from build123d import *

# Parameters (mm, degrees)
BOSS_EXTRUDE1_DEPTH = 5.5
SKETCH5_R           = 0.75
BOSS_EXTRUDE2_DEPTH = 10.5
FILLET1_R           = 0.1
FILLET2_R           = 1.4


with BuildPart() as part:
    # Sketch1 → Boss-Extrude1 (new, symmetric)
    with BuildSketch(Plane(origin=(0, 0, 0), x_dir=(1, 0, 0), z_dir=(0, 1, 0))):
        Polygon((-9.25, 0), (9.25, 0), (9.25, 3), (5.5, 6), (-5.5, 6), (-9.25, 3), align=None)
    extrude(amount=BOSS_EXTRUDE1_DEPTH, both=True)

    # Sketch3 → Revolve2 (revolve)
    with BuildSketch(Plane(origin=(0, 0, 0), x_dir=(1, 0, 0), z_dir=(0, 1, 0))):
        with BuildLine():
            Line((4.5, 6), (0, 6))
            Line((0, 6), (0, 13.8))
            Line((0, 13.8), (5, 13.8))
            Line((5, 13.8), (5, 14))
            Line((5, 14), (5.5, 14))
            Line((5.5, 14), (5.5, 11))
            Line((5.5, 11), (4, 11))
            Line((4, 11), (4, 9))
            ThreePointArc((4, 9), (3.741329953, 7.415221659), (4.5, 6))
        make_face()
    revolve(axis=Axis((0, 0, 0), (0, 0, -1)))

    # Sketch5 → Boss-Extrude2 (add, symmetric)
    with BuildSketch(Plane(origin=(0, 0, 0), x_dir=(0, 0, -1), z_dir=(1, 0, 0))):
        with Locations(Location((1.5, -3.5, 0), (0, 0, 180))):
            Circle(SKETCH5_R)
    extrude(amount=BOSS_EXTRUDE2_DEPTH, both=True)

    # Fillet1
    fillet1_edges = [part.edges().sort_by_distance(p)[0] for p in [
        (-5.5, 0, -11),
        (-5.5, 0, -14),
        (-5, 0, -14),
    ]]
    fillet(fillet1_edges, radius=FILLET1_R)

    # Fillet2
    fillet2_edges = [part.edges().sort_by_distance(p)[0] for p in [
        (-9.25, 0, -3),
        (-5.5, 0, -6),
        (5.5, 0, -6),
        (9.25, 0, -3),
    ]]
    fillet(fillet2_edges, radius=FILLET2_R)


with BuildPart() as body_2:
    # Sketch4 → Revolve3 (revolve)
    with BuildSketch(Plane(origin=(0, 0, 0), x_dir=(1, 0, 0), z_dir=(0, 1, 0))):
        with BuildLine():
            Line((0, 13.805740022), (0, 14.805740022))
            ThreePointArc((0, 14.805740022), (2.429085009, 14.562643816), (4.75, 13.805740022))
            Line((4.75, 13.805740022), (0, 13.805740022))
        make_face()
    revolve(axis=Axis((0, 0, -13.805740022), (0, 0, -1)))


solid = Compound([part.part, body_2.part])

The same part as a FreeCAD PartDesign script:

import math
import FreeCAD as App
import Part
import Sketcher

V = App.Vector


def edges_at(feature, points):
    """Names of the edges that pass closest to the given points."""
    edges = feature.Shape.Edges
    near = lambda p: min(range(len(edges)), key=lambda i: edges[i].distToShape(Part.Vertex(*p))[0])
    return sorted({f"Edge{near(p) + 1}" for p in points})


def add_polygon(sketch, points):
    """Adds a closed chain of lines whose ends are joined by coincident constraints."""
    first, n = sketch.GeometryCount, len(points)
    for a, b in zip(points, points[1:] + points[:1]):
        sketch.addGeometry(Part.LineSegment(App.Vector(*a, 0), App.Vector(*b, 0)), False)
    for i in range(n):
        sketch.addConstraint(Sketcher.Constraint("Coincident", first + i, 2, first + (i + 1) % n, 1))

doc = App.newDocument("Part")
params = doc.addObject("Spreadsheet::Sheet", "Params")
for row, (alias, value) in enumerate([
    ("sketch1_width", "11 mm"),
    ("sketch1_height", "3 mm"),
    ("sketch1_width2", "18.5 mm"),
    ("pad1_length", "11 mm"),
    ("sketch2_radius", "2.5 mm"),
    ("sketch2_width", "5 mm"),
    ("sketch2_height", "2 mm"),
    ("sketch2_height2", "3 mm"),
    ("sketch2_width2", "4.5 mm"),
    ("revolution_angle", "360 deg"),
    ("sketch3_diameter", "1.5 mm"),
    ("pad2_length", "21 mm"),
    ("fillet_radius", "0.1 mm"),
    ("fillet2_radius", "1.4 mm"),
    ("sketch4_height", "1 mm"),
    ("sketch4_radius", "11.35 mm"),
    ("sketch4_width", "4.75 mm"),
    ("revolution2_angle", "360 deg"),
], start=1):
    params.set(f"A{row}", alias)
    params.set(f"B{row}", "=" + value)
    params.setAlias(f"B{row}", alias)

body = doc.addObject("PartDesign::Body", "Body")

# Sketch on XZ plane
sketch1 = body.newObject("Sketcher::SketchObject", "Sketch")
sketch1.AttachmentSupport = (doc.getObject("XZ_Plane"), [""])
sketch1.MapMode = "FlatFace"
add_polygon(sketch1, [(-9.25, 0), (9.25, 0), (9.25, -3), (5.5, -6), (-5.5, -6), (-9.25, -3)])  # lines 0-5
sketch1.addConstraint(Sketcher.Constraint("Horizontal", 0))
sketch1.addConstraint(Sketcher.Constraint("Vertical", 1))
sketch1.addConstraint(Sketcher.Constraint("Horizontal", 3))
sketch1.addConstraint(Sketcher.Constraint("Vertical", 5))
sketch1.addConstraint(Sketcher.Constraint("Symmetric", 0, 2, 5, 2, -1, 1))
sketch1.addConstraint(Sketcher.Constraint("Horizontal", 1, 2, 4, 2))
sketch1.addConstraint(Sketcher.Constraint("Equal", 2, 4))
sketch1.addConstraint(Sketcher.Constraint("DistanceX", 3, 2, 3, 1, 11.0))
sketch1.addConstraint(Sketcher.Constraint("DistanceY", 1, 2, 1, 1, 3.0))
sketch1.addConstraint(Sketcher.Constraint("DistanceX", 0, 1, 0, 2, 18.5))
sketch1.addConstraint(Sketcher.Constraint("DistanceY", 2, 2, -1, 1, 6.0))
sketch1.setExpression("Constraints[13]", "Params.sketch1_width")
sketch1.setExpression("Constraints[14]", "Params.sketch1_height")
sketch1.setExpression("Constraints[15]", "Params.sketch1_width2")
pad1 = body.newObject("PartDesign::Pad", "Pad")
pad1.Profile = sketch1
pad1.setExpression("Length", "Params.pad1_length")
pad1.Midplane = True

# Sketch on XZ plane
sketch2 = body.newObject("Sketcher::SketchObject", "Sketch001")
sketch2.AttachmentSupport = (doc.getObject("XZ_Plane"), [""])
sketch2.MapMode = "FlatFace"
sketch2.addGeometry(Part.LineSegment(V(0, -6, 0), V(4.5, -6, 0)), False)
sketch2.addGeometry(Part.ArcOfCircle(Part.Circle(V(6.207315, -7.826219, 0), V(0, 0, 1), 2.5), math.radians(133.072709), math.radians(208.002647)), False)
sketch2.addGeometry(Part.LineSegment(V(4, -9, 0), V(4, -11, 0)), False)
sketch2.addGeometry(Part.LineSegment(V(4, -11, 0), V(5.5, -11, 0)), False)
sketch2.addGeometry(Part.LineSegment(V(5.5, -11, 0), V(5.5, -14, 0)), False)
sketch2.addGeometry(Part.LineSegment(V(5.5, -14, 0), V(5, -14, 0)), False)
sketch2.addGeometry(Part.LineSegment(V(5, -14, 0), V(5, -13.8, 0)), False)
sketch2.addGeometry(Part.LineSegment(V(5, -13.8, 0), V(0, -13.8, 0)), False)
sketch2.addGeometry(Part.LineSegment(V(0, -13.8, 0), V(0, -6, 0)), False)
sketch2.addConstraint(Sketcher.Constraint("Coincident", 0, 2, 1, 1))
sketch2.addConstraint(Sketcher.Constraint("Coincident", 1, 2, 2, 1))
sketch2.addConstraint(Sketcher.Constraint("Coincident", 2, 2, 3, 1))
sketch2.addConstraint(Sketcher.Constraint("Coincident", 3, 2, 4, 1))
sketch2.addConstraint(Sketcher.Constraint("Coincident", 4, 2, 5, 1))
sketch2.addConstraint(Sketcher.Constraint("Coincident", 5, 2, 6, 1))
sketch2.addConstraint(Sketcher.Constraint("Coincident", 6, 2, 7, 1))
sketch2.addConstraint(Sketcher.Constraint("Coincident", 7, 2, 8, 1))
sketch2.addConstraint(Sketcher.Constraint("Coincident", 8, 2, 0, 1))
sketch2.addConstraint(Sketcher.Constraint("Horizontal", 0))
sketch2.addConstraint(Sketcher.Constraint("Vertical", 2))
sketch2.addConstraint(Sketcher.Constraint("Horizontal", 3))
sketch2.addConstraint(Sketcher.Constraint("Vertical", 4))
sketch2.addConstraint(Sketcher.Constraint("Horizontal", 5))
sketch2.addConstraint(Sketcher.Constraint("Vertical", 6))
sketch2.addConstraint(Sketcher.Constraint("Horizontal", 7))
sketch2.addConstraint(Sketcher.Constraint("Vertical", 8))
sketch2.addConstraint(Sketcher.Constraint("PointOnObject", 7, 2, -2))
sketch2.addConstraint(Sketcher.Constraint("Radius", 1, 2.5))
sketch2.addConstraint(Sketcher.Constraint("DistanceX", 7, 2, 7, 1, 5.0))
sketch2.addConstraint(Sketcher.Constraint("DistanceY", 2, 2, 2, 1, 2.0))
sketch2.addConstraint(Sketcher.Constraint("DistanceY", 4, 2, 4, 1, 3.0))
sketch2.addConstraint(Sketcher.Constraint("DistanceX", 0, 1, 0, 2, 4.5))
sketch2.addConstraint(Sketcher.Constraint("DistanceX", 3, 1, 3, 2, 1.5))
sketch2.addConstraint(Sketcher.Constraint("DistanceX", 5, 2, 5, 1, 0.5))
sketch2.addConstraint(Sketcher.Constraint("DistanceY", 6, 1, 6, 2, 0.2))
sketch2.addConstraint(Sketcher.Constraint("DistanceY", 8, 1, 8, 2, 7.8))
sketch2.addConstraint(Sketcher.Constraint("DistanceY", 0, 2, -1, 1, 6.0))
sketch2.setExpression("Constraints[18]", "Params.sketch2_radius")
sketch2.setExpression("Constraints[19]", "Params.sketch2_width")
sketch2.setExpression("Constraints[20]", "Params.sketch2_height")
sketch2.setExpression("Constraints[21]", "Params.sketch2_height2")
sketch2.setExpression("Constraints[22]", "Params.sketch2_width2")
revolution = body.newObject("PartDesign::Revolution", "Revolution")
revolution.Profile = sketch2
revolution.ReferenceAxis = (sketch2, ["V_Axis"])
revolution.setExpression("Angle", "Params.revolution_angle")

# Sketch on YZ plane
sketch3 = body.newObject("Sketcher::SketchObject", "Sketch002")
sketch3.AttachmentSupport = (doc.getObject("YZ_Plane"), [""])
sketch3.MapMode = "FlatFace"
sketch3.addGeometry(Part.Circle(V(-3.5, -1.5, 0), V(0, 0, 1), 0.75), False)
sketch3.addConstraint(Sketcher.Constraint("Diameter", 0, 1.5))
sketch3.addConstraint(Sketcher.Constraint("DistanceX", 0, 3, -1, 1, 3.5))
sketch3.addConstraint(Sketcher.Constraint("DistanceY", 0, 3, -1, 1, 1.5))
sketch3.setExpression("Constraints[0]", "Params.sketch3_diameter")
pad2 = body.newObject("PartDesign::Pad", "Pad001")
pad2.Profile = sketch3
pad2.setExpression("Length", "Params.pad2_length")
pad2.Midplane = True
doc.recompute()

fillet = body.newObject("PartDesign::Fillet", "Fillet")
fillet.Base = (pad2, edges_at(pad2, [(-5.5, 0, -11), (-5.5, 0, -14), (-5, 0, -14)]))
fillet.setExpression("Radius", "Params.fillet_radius")
doc.recompute()

fillet2 = body.newObject("PartDesign::Fillet", "Fillet001")
fillet2.Base = (fillet, edges_at(fillet, [
    (-9.25, 0, -3),
    (-5.5, 0, -6),
    (5.5, 0, -6),
    (9.25, 0, -3),
]))
fillet2.setExpression("Radius", "Params.fillet2_radius")
body2 = doc.addObject("PartDesign::Body", "Body001")

# Sketch on XZ plane
sketch4 = body2.newObject("Sketcher::SketchObject", "Sketch003")
sketch4.AttachmentSupport = (doc.getObject("XZ_Plane001"), [""])
sketch4.MapMode = "FlatFace"
sketch4.addGeometry(Part.LineSegment(V(0, -14.80574, 0), V(0, -13.80574, 0)), False)
sketch4.addGeometry(Part.LineSegment(V(0, -13.80574, 0), V(4.75, -13.80574, 0)), False)
sketch4.addGeometry(Part.ArcOfCircle(Part.Circle(V(0.090866, -3.456104, 0), V(0, 0, 1), 11.35), math.radians(-90.458705), math.radians(-65.763979)), False)
sketch4.addConstraint(Sketcher.Constraint("Coincident", 0, 2, 1, 1))
sketch4.addConstraint(Sketcher.Constraint("Coincident", 1, 2, 2, 2))
sketch4.addConstraint(Sketcher.Constraint("Coincident", 2, 1, 0, 1))
sketch4.addConstraint(Sketcher.Constraint("Vertical", 0))
sketch4.addConstraint(Sketcher.Constraint("Horizontal", 1))
sketch4.addConstraint(Sketcher.Constraint("PointOnObject", 0, 2, -2))
sketch4.addConstraint(Sketcher.Constraint("DistanceY", 0, 1, 0, 2, 1.0))
sketch4.addConstraint(Sketcher.Constraint("Radius", 2, 11.35))
sketch4.addConstraint(Sketcher.Constraint("DistanceX", 1, 1, 1, 2, 4.75))
sketch4.addConstraint(Sketcher.Constraint("DistanceY", 0, 2, -1, 1, 13.80574))
sketch4.setExpression("Constraints[6]", "Params.sketch4_height")
sketch4.setExpression("Constraints[7]", "Params.sketch4_radius")
sketch4.setExpression("Constraints[8]", "Params.sketch4_width")
revolution2 = body2.newObject("PartDesign::Revolution", "Revolution001")
revolution2.Profile = sketch4
revolution2.ReferenceAxis = (sketch4, ["V_Axis"])
revolution2.setExpression("Angle", "Params.revolution2_angle")

doc.recompute()
